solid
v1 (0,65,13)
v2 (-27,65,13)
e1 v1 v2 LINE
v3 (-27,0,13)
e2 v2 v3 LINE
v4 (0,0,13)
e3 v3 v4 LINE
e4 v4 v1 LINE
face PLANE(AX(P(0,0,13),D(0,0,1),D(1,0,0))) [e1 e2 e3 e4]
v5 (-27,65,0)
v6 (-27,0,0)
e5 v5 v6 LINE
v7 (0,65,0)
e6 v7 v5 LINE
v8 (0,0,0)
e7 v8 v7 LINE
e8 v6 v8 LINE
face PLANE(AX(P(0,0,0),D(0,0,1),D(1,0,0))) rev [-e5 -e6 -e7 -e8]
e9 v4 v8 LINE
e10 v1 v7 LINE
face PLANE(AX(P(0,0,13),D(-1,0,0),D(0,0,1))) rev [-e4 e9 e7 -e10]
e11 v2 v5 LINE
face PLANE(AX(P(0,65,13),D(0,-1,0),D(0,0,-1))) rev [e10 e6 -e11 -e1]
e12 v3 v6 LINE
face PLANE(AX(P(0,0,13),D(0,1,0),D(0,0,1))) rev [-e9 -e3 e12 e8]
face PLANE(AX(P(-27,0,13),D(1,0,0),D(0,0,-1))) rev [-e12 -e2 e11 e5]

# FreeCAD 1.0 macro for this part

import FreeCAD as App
import Part
import Sketcher

doc = App.newDocument("Part")
body = doc.addObject("PartDesign::Body", "Body")

sketch1 = body.newObject("Sketcher::SketchObject", "Sketch")
sketch1.AttachmentSupport = (doc.getObject("XY_Plane"), [""])
sketch1.MapMode = "FlatFace"
sketch1.addGeometry([
    Part.LineSegment(App.Vector(-27, 65, 0), App.Vector(-27, 0, 0)),
    Part.LineSegment(App.Vector(-27, 0, 0), App.Vector(0, 0, 0)),
    Part.LineSegment(App.Vector(0, 0, 0), App.Vector(0, 65, 0)),
    Part.LineSegment(App.Vector(0, 65, 0), App.Vector(-27, 65, 0)),
], False)
sketch1.addConstraint([
    Sketcher.Constraint("Coincident", 0, 2, 1, 1),
    Sketcher.Constraint("Coincident", 1, 2, 2, 1),
    Sketcher.Constraint("Coincident", 2, 2, 3, 1),
    Sketcher.Constraint("Coincident", 3, 2, 0, 1),
    Sketcher.Constraint("Vertical", 0),
    Sketcher.Constraint("Horizontal", 1),
    Sketcher.Constraint("Vertical", 2),
    Sketcher.Constraint("Horizontal", 3),
    Sketcher.Constraint("Coincident", 1, 2, -1, 1),
    Sketcher.Constraint("DistanceX", 1, 1, 1, 2, 27.0),
    Sketcher.Constraint("DistanceY", 0, 2, 0, 1, 65.0),
])
pad1 = body.newObject("PartDesign::Pad", "Pad")
pad1.Profile = sketch1
pad1.Length = 13

doc.recompute()
